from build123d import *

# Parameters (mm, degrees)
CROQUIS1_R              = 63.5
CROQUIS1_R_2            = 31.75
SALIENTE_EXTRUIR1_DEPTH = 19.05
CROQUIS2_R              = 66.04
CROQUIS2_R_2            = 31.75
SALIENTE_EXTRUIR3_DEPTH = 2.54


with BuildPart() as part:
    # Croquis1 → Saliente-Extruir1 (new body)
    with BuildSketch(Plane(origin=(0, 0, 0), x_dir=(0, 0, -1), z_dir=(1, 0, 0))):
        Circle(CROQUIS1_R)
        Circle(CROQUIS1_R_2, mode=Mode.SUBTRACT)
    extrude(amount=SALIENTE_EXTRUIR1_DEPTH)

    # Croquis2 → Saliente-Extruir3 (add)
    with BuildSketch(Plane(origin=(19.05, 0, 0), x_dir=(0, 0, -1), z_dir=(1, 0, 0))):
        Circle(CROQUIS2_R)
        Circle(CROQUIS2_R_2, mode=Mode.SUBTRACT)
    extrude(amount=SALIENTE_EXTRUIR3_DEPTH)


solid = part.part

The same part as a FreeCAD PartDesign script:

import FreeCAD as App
import Part
import Sketcher

V = App.Vector
Q = App.Units.Quantity

doc = App.newDocument("Part")
body = doc.addObject("PartDesign::Body", "Body")

# Sketch on YZ plane
sketch1 = body.newObject("Sketcher::SketchObject", "Sketch")
sketch1.AttachmentSupport = (doc.getObject("YZ_Plane"), [""])
sketch1.MapMode = "FlatFace"
sketch1.addGeometry(Part.Circle(V(0, 0, 0), V(0, 0, 1), 64), False)
sketch1.addGeometry(Part.Circle(V(0, 0, 0), V(0, 0, 1), 32), False)
sketch1.addConstraint(Sketcher.Constraint("Coincident", 0, 3, -1, 1))
sketch1.addConstraint(Sketcher.Constraint("Coincident", 1, 3, -1, 1))
sketch1.addConstraint(Sketcher.Constraint("Diameter", 0, Q("5 in")))
sketch1.addConstraint(Sketcher.Constraint("Diameter", 1, Q("2.5 in")))
pad1 = body.newObject("PartDesign::Pad", "Pad")
pad1.Profile = sketch1
pad1.Length = Q("0.75 in")

# Sketch on YZ plane
sketch2 = body.newObject("Sketcher::SketchObject", "Sketch001")
sketch2.AttachmentSupport = (doc.getObject("YZ_Plane"), [""])
sketch2.MapMode = "FlatFace"
sketch2.AttachmentOffset = App.Placement(V(0, 0, 0.75 * 25.4), App.Rotation())
sketch2.addGeometry(Part.Circle(V(0, 0, 0), V(0, 0, 1), 66), False)
sketch2.addGeometry(Part.Circle(V(0, 0, 0), V(0, 0, 1), 32), False)
sketch2.addConstraint(Sketcher.Constraint("Coincident", 0, 3, -1, 1))
sketch2.addConstraint(Sketcher.Constraint("Coincident", 1, 3, -1, 1))
sketch2.addConstraint(Sketcher.Constraint("Diameter", 0, Q("5.2 in")))
sketch2.addConstraint(Sketcher.Constraint("Diameter", 1, Q("2.5 in")))
pad2 = body.newObject("PartDesign::Pad", "Pad001")
pad2.Profile = sketch2
pad2.Length = Q("0.1 in")

doc.recompute()
